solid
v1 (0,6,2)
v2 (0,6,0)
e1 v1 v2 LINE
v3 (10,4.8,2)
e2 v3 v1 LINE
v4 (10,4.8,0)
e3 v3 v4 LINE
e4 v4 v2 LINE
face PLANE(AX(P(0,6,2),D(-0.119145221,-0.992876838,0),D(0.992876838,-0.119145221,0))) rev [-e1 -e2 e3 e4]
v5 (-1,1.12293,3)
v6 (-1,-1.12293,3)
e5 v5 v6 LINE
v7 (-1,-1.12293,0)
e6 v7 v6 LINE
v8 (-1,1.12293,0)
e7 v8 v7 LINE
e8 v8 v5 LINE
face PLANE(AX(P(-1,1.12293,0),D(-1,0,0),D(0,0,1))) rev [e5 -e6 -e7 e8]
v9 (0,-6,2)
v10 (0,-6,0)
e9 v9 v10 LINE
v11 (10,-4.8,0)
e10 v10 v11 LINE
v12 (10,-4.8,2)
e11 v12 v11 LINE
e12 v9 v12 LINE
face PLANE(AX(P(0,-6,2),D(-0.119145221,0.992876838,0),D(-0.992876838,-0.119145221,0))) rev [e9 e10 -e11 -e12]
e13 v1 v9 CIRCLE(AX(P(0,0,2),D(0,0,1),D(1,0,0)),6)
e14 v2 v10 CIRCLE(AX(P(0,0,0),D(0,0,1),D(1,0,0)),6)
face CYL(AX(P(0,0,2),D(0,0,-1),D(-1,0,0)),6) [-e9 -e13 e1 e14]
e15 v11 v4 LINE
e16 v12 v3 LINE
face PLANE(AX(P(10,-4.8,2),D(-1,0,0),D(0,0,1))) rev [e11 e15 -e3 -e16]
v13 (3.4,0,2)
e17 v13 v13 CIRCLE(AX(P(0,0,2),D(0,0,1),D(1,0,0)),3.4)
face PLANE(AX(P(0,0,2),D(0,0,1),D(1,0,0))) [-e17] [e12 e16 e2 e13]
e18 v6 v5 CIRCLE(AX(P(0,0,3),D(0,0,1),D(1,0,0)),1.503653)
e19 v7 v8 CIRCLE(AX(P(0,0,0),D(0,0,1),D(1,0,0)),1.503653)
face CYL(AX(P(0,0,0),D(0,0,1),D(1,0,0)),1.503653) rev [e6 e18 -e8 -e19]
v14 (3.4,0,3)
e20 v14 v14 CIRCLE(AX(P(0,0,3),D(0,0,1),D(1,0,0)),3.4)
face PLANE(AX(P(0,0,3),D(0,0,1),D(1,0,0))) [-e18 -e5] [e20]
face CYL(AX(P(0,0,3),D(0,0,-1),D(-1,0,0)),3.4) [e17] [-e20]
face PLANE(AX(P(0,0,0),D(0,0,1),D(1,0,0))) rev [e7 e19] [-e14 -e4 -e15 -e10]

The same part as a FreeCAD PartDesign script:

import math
import FreeCAD as App
import Part
import Sketcher

V = App.Vector
Q = App.Units.Quantity

doc = App.newDocument("Part")
body = doc.addObject("PartDesign::Body", "Body")

sketch1 = body.newObject("Sketcher::SketchObject", "Sketch")
sketch1.AttachmentSupport = (doc.getObject("XY_Plane"), [""])
sketch1.MapMode = "FlatFace"
sketch1.addGeometry(Part.LineSegment(V(10, -5, 0), V(10, 5, 0)), False)
sketch1.addGeometry(Part.LineSegment(V(10, 5, 0), V(0, 6, 0)), False)
sketch1.addGeometry(Part.ArcOfCircle(Part.Circle(V(0, 0, 0), V(0, 0, 1), 6), math.radians(90), math.radians(270)), False)
sketch1.addGeometry(Part.LineSegment(V(0, -6, 0), V(10, -5, 0)), False)
sketch1.addConstraint(Sketcher.Constraint("Coincident", 0, 2, 1, 1))
sketch1.addConstraint(Sketcher.Constraint("Coincident", 1, 2, 2, 1))
sketch1.addConstraint(Sketcher.Constraint("Coincident", 2, 2, 3, 1))
sketch1.addConstraint(Sketcher.Constraint("Coincident", 3, 2, 0, 1))
sketch1.addConstraint(Sketcher.Constraint("Vertical", 0))
sketch1.addConstraint(Sketcher.Constraint("Coincident", 2, 3, -1, 1))
sketch1.addConstraint(Sketcher.Constraint("PointOnObject", 1, 2, -2))
sketch1.addConstraint(Sketcher.Constraint("PointOnObject", 2, 2, -2))
sketch1.addConstraint(Sketcher.Constraint("Equal", 1, 3))
sketch1.addConstraint(Sketcher.Constraint("Radius", 2, Q("6 mm")))
sketch1.addConstraint(Sketcher.Constraint("DistanceY", 0, 1, 0, 2, Q("9.6 mm")))
sketch1.addConstraint(Sketcher.Constraint("DistanceX", -1, 1, 0, 2, Q("10 mm")))
pad1 = body.newObject("PartDesign::Pad", "Pad")
pad1.Profile = sketch1
pad1.Length = 2

sketch2 = body.newObject("Sketcher::SketchObject", "Sketch001")
sketch2.AttachmentSupport = (doc.getObject("XY_Plane"), [""])
sketch2.MapMode = "FlatFace"
sketch2.AttachmentOffset = App.Placement(V(0, 0, 2), App.Rotation())
sketch2.addGeometry(Part.Circle(V(0, 0, 0), V(0, 0, 1), 3.4), False)
sketch2.addConstraint(Sketcher.Constraint("Coincident", 0, 3, -1, 1))
sketch2.addConstraint(Sketcher.Constraint("Diameter", 0, Q("6.8 mm")))
pad2 = body.newObject("PartDesign::Pad", "Pad001")
pad2.Profile = sketch2
pad2.Length = 1

sketch3 = body.newObject("Sketcher::SketchObject", "Sketch002")
sketch3.AttachmentSupport = (doc.getObject("XY_Plane"), [""])
sketch3.MapMode = "FlatFace"
sketch3.AttachmentOffset = App.Placement(V(0, 0, 3), App.Rotation())
sketch3.addGeometry(Part.LineSegment(V(-1, 1.1, 0), V(-1, -1.1, 0)), False)
sketch3.addGeometry(Part.ArcOfCircle(Part.Circle(V(0, 0, 0), V(0, 0, 1), 1.5), math.radians(-132), math.radians(132)), False)
sketch3.addConstraint(Sketcher.Constraint("Coincident", 0, 1, 1, 2))
sketch3.addConstraint(Sketcher.Constraint("Coincident", 1, 1, 0, 2))
sketch3.addConstraint(Sketcher.Constraint("Vertical", 0))
sketch3.addConstraint(Sketcher.Constraint("Coincident", 1, 3, -1, 1))
sketch3.addConstraint(Sketcher.Constraint("DistanceX", 0, 1, -1, 1, Q("1 mm")))
sketch3.addConstraint(Sketcher.Constraint("Radius", 1, Q("1.503653 mm")))
pocket1 = body.newObject("PartDesign::Pocket", "Pocket")
pocket1.Profile = sketch3
pocket1.Type = "ThroughAll"

doc.recompute()
